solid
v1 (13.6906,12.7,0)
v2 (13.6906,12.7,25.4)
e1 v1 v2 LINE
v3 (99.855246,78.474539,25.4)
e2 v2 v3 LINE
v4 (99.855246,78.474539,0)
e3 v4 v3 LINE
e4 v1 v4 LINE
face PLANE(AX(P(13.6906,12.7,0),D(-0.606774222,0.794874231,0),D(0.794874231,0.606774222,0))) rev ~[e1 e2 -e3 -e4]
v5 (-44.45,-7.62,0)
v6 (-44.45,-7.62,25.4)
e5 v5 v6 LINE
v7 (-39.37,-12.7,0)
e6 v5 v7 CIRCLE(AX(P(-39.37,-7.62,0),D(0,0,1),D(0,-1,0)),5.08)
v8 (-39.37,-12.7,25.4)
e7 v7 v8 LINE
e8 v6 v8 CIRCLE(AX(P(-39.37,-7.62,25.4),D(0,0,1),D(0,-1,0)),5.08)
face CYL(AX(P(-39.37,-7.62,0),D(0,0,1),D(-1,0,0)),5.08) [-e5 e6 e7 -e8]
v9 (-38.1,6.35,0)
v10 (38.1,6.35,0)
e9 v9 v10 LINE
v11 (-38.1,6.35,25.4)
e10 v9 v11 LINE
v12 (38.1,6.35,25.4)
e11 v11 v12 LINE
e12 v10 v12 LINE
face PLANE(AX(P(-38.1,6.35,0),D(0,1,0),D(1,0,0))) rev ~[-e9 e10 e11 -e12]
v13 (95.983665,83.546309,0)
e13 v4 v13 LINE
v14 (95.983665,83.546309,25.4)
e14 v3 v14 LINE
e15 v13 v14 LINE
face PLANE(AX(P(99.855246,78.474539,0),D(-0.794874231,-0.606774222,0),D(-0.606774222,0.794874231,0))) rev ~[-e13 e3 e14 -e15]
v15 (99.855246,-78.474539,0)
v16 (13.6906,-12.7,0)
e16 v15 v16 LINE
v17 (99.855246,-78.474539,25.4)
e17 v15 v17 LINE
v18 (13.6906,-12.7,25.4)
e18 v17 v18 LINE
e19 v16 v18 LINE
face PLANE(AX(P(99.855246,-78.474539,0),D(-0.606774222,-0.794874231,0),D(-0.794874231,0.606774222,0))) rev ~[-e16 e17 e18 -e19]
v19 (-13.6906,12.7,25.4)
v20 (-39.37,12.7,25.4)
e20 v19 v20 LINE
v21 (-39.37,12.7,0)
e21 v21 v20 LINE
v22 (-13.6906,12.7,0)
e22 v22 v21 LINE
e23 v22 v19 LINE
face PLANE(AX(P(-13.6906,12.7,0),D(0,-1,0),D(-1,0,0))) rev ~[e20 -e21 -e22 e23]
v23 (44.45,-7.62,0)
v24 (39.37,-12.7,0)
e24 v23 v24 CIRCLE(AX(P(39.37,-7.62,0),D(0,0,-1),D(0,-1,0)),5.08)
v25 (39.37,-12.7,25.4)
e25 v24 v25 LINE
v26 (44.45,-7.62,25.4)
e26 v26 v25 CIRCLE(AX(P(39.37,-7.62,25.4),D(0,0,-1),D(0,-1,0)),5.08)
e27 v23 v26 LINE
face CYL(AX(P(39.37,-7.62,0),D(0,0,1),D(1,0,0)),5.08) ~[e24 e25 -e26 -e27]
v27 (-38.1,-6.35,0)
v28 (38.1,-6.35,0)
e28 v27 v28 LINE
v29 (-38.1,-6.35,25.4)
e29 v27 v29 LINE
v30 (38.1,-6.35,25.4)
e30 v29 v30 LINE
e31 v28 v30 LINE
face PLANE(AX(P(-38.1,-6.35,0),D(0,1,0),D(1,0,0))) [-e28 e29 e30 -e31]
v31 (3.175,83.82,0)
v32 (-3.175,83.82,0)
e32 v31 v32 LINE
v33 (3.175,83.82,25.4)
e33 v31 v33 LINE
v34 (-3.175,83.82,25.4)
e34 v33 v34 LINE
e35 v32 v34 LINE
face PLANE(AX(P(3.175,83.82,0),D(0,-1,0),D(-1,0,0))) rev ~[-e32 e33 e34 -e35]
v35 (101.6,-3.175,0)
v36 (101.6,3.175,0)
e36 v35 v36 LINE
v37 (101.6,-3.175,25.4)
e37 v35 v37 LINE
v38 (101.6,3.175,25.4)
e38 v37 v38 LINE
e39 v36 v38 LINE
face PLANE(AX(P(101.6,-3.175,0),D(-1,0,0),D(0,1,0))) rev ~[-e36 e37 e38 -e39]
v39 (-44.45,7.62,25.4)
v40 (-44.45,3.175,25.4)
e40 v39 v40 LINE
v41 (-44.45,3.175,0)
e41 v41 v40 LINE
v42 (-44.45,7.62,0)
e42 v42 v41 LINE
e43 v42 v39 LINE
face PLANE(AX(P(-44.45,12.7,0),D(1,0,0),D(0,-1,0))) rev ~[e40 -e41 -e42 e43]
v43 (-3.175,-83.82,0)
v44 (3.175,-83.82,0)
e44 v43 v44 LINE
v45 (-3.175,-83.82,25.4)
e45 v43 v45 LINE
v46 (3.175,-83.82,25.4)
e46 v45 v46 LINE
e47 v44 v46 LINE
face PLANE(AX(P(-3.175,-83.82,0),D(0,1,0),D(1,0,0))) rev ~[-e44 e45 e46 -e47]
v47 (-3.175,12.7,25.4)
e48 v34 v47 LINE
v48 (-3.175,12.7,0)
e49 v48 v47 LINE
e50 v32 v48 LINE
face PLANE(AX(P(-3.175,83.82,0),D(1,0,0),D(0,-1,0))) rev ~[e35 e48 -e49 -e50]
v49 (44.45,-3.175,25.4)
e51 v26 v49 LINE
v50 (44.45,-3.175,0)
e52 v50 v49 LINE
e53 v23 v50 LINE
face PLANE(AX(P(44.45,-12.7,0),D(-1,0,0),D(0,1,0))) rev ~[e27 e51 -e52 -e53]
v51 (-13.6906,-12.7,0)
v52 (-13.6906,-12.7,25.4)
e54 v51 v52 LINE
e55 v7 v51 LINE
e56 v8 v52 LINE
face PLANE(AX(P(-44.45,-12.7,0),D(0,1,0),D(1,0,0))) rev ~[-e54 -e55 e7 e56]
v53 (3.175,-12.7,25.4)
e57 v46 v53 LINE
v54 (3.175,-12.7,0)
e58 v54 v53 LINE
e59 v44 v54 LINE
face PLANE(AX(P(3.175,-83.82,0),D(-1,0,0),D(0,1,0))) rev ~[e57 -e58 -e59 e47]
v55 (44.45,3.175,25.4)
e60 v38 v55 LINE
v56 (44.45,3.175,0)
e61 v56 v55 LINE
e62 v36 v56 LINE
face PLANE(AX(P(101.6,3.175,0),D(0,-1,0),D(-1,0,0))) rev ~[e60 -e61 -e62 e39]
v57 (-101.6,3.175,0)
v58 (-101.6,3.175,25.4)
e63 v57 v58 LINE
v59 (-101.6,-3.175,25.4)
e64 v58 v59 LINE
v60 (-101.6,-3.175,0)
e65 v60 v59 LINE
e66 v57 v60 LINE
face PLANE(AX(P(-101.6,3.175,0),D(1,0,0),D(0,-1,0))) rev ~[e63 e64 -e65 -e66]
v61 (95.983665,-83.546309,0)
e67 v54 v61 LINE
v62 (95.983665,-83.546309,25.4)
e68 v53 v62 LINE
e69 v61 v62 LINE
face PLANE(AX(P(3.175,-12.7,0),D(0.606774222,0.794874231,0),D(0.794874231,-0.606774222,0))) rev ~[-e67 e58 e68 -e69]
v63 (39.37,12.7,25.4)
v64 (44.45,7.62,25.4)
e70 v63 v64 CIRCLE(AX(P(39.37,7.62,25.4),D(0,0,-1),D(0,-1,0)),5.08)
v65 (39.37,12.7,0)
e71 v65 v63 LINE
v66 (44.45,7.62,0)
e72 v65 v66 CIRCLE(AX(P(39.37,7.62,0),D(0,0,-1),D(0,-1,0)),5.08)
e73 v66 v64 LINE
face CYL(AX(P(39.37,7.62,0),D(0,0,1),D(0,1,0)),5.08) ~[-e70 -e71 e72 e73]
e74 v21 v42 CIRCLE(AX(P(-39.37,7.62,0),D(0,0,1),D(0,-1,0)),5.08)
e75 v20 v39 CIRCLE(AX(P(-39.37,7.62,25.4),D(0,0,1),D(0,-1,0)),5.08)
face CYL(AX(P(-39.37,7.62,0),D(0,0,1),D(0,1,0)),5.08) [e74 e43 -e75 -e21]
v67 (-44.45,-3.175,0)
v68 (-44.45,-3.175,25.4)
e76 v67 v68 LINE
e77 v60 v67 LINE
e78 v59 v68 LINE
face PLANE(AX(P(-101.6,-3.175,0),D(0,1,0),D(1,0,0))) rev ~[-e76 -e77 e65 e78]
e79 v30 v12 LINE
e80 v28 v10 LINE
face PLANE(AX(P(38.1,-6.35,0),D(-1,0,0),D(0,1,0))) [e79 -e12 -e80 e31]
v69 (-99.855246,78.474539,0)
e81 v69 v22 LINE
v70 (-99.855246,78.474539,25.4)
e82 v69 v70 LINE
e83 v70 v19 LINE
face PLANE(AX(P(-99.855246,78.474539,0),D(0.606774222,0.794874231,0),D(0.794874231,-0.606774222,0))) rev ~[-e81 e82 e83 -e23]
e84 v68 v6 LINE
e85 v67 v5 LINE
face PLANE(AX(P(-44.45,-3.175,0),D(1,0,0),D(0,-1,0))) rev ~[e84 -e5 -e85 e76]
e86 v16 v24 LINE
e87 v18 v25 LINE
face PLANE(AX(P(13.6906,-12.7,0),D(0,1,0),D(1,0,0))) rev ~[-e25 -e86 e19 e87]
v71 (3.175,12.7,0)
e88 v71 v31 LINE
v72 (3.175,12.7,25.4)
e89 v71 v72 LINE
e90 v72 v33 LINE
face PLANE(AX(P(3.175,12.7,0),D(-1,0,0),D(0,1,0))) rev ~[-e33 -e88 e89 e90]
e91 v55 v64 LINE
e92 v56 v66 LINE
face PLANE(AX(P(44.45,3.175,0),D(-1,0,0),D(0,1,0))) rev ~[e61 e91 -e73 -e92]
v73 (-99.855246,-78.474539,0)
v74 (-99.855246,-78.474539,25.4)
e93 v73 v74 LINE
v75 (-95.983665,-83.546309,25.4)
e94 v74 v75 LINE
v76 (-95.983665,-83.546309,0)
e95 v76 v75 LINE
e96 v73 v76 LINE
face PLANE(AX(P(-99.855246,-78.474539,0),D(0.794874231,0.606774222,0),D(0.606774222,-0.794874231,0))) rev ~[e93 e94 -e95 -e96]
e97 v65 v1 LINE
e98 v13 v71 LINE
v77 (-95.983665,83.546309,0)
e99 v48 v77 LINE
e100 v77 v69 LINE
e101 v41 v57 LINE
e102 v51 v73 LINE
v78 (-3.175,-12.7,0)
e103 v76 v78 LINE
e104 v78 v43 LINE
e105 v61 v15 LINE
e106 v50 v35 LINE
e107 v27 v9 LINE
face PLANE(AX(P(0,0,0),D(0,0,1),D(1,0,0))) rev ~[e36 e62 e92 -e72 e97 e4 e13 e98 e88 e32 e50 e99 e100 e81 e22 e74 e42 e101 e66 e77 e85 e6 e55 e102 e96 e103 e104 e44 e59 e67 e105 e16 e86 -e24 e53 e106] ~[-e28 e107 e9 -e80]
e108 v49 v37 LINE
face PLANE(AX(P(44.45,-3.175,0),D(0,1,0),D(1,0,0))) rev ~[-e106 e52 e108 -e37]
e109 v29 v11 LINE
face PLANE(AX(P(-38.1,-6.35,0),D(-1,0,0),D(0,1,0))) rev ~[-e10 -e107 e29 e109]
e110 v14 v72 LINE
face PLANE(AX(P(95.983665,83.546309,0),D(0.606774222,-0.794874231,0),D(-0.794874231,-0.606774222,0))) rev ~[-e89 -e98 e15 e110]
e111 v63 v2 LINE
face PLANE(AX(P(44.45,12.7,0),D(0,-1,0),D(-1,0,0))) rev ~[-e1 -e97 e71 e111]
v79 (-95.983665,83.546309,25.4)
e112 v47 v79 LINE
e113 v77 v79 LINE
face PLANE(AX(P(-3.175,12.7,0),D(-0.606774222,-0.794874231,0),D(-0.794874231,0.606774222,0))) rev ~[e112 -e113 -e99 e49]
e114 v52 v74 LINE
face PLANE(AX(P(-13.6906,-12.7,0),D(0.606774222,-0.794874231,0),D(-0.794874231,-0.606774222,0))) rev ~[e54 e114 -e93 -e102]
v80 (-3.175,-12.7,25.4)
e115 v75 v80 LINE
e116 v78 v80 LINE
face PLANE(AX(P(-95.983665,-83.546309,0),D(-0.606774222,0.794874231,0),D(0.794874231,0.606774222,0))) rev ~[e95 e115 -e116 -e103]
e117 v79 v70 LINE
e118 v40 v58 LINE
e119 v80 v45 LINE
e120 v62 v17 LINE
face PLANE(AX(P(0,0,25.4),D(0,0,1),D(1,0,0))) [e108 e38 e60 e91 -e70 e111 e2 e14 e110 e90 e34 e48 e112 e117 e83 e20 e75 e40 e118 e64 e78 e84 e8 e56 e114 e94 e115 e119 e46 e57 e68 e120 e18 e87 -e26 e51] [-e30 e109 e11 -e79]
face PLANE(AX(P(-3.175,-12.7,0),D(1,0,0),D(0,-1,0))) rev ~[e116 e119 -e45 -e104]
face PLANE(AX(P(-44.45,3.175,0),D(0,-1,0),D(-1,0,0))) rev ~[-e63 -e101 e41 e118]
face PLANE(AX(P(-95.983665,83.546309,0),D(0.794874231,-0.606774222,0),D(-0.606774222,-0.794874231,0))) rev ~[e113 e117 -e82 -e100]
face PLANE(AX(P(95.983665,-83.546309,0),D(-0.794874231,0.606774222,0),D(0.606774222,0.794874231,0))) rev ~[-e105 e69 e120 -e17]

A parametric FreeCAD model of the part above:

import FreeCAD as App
import Part
import Sketcher
Q = App.Units.Quantity


def edges_at(feature, points):
    """Names of the edges that pass closest to the given points."""
    edges = feature.Shape.Edges
    near = lambda p: min(range(len(edges)), key=lambda i: edges[i].distToShape(Part.Vertex(*p))[0])
    return sorted({f"Edge{near(p) + 1}" for p in points})

doc = App.newDocument("Part")
params = doc.addObject("Spreadsheet::Sheet", "Params")
for row, (alias, value) in enumerate([
    ("sketch1_width", "3 in"),
    ("sketch1_height", "2.8 in"),
    ("sketch1_height2", "0.5 in"),
    ("sketch1_width2", "0.25 in"),
    ("sketch1_width3", "2.25 in"),
    ("pad1_length", "1 in"),
    ("fillet_radius", "0.2 in"),
], start=1):
    params.set(f"A{row}", alias)
    params.set(f"B{row}", "=" + value)
    params.setAlias(f"B{row}", alias)

body = doc.addObject("PartDesign::Body", "Body")

# Sketch on XY plane
sketch1 = body.newObject("Sketcher::SketchObject", "Sketch")
sketch1.AttachmentSupport = (doc.getObject("XY_Plane"), [""])
sketch1.MapMode = "FlatFace"
sketch1.addGeometry([
    Part.LineSegment(App.Vector(44.45, 12.7, 0), App.Vector(13.6906, 12.7, 0)),  # 0
    Part.LineSegment(App.Vector(13.6906, 12.7, 0), App.Vector(99.855246, 78.474539, 0)),  # 1
    Part.LineSegment(App.Vector(99.855246, 78.474539, 0), App.Vector(95.983665, 83.546309, 0)),  # 2
    Part.LineSegment(App.Vector(95.983665, 83.546309, 0), App.Vector(3.175, 12.7, 0)),  # 3
    Part.LineSegment(App.Vector(3.175, 12.7, 0), App.Vector(3.175, 83.82, 0)),  # 4
    Part.LineSegment(App.Vector(3.175, 83.82, 0), App.Vector(-3.175, 83.82, 0)),  # 5
    Part.LineSegment(App.Vector(-3.175, 83.82, 0), App.Vector(-3.175, 12.7, 0)),  # 6
    Part.LineSegment(App.Vector(-3.175, 12.7, 0), App.Vector(-95.983665, 83.546309, 0)),  # 7
    Part.LineSegment(App.Vector(-95.983665, 83.546309, 0), App.Vector(-99.855246, 78.474539, 0)),  # 8
    Part.LineSegment(App.Vector(-99.855246, 78.474539, 0), App.Vector(-13.6906, 12.7, 0)),  # 9
    Part.LineSegment(App.Vector(-13.6906, 12.7, 0), App.Vector(-44.45, 12.7, 0)),  # 10
    Part.LineSegment(App.Vector(-44.45, 12.7, 0), App.Vector(-44.45, 3.175, 0)),  # 11
    Part.LineSegment(App.Vector(-44.45, 3.175, 0), App.Vector(-101.6, 3.175, 0)),  # 12
    Part.LineSegment(App.Vector(-101.6, 3.175, 0), App.Vector(-101.6, -3.175, 0)),  # 13
    Part.LineSegment(App.Vector(-101.6, -3.175, 0), App.Vector(-44.45, -3.175, 0)),  # 14
    Part.LineSegment(App.Vector(-44.45, -3.175, 0), App.Vector(-44.45, -12.7, 0)),  # 15
    Part.LineSegment(App.Vector(-44.45, -12.7, 0), App.Vector(-13.6906, -12.7, 0)),  # 16
    Part.LineSegment(App.Vector(-13.6906, -12.7, 0), App.Vector(-99.855246, -78.474539, 0)),  # 17
    Part.LineSegment(App.Vector(-99.855246, -78.474539, 0), App.Vector(-95.983665, -83.546309, 0)),  # 18
    Part.LineSegment(App.Vector(-95.983665, -83.546309, 0), App.Vector(-3.175, -12.7, 0)),  # 19
    Part.LineSegment(App.Vector(-3.175, -12.7, 0), App.Vector(-3.175, -83.82, 0)),  # 20
    Part.LineSegment(App.Vector(-3.175, -83.82, 0), App.Vector(3.175, -83.82, 0)),  # 21
    Part.LineSegment(App.Vector(3.175, -83.82, 0), App.Vector(3.175, -12.7, 0)),  # 22
    Part.LineSegment(App.Vector(3.175, -12.7, 0), App.Vector(95.983665, -83.546309, 0)),  # 23
    Part.LineSegment(App.Vector(95.983665, -83.546309, 0), App.Vector(99.855246, -78.474539, 0)),  # 24
    Part.LineSegment(App.Vector(99.855246, -78.474539, 0), App.Vector(13.6906, -12.7, 0)),  # 25
    Part.LineSegment(App.Vector(13.6906, -12.7, 0), App.Vector(44.45, -12.7, 0)),  # 26
    Part.LineSegment(App.Vector(44.45, -12.7, 0), App.Vector(44.45, -3.175, 0)),  # 27
    Part.LineSegment(App.Vector(44.45, -3.175, 0), App.Vector(101.6, -3.175, 0)),  # 28
    Part.LineSegment(App.Vector(101.6, -3.175, 0), App.Vector(101.6, 3.175, 0)),  # 29
    Part.LineSegment(App.Vector(101.6, 3.175, 0), App.Vector(44.45, 3.175, 0)),  # 30
    Part.LineSegment(App.Vector(44.45, 3.175, 0), App.Vector(44.45, 12.7, 0)),  # 31
    Part.LineSegment(App.Vector(38.1, -6.35, 0), App.Vector(-38.1, -6.35, 0)),  # 32
    Part.LineSegment(App.Vector(-38.1, -6.35, 0), App.Vector(-38.1, 6.35, 0)),  # 33
    Part.LineSegment(App.Vector(-38.1, 6.35, 0), App.Vector(38.1, 6.35, 0)),  # 34
    Part.LineSegment(App.Vector(38.1, 6.35, 0), App.Vector(38.1, -6.35, 0)),  # 35
], False)
sketch1.addConstraint([
    Sketcher.Constraint("Coincident", 0, 2, 1, 1),
    Sketcher.Constraint("Coincident", 1, 2, 2, 1),
    Sketcher.Constraint("Coincident", 2, 2, 3, 1),
    Sketcher.Constraint("Coincident", 3, 2, 4, 1),
    Sketcher.Constraint("Coincident", 4, 2, 5, 1),
    Sketcher.Constraint("Coincident", 5, 2, 6, 1),
    Sketcher.Constraint("Coincident", 6, 2, 7, 1),
    Sketcher.Constraint("Coincident", 7, 2, 8, 1),
    Sketcher.Constraint("Coincident", 8, 2, 9, 1),
    Sketcher.Constraint("Coincident", 9, 2, 10, 1),
    Sketcher.Constraint("Coincident", 10, 2, 11, 1),
    Sketcher.Constraint("Coincident", 11, 2, 12, 1),
    Sketcher.Constraint("Coincident", 12, 2, 13, 1),
    Sketcher.Constraint("Coincident", 13, 2, 14, 1),
    Sketcher.Constraint("Coincident", 14, 2, 15, 1),
    Sketcher.Constraint("Coincident", 15, 2, 16, 1),
    Sketcher.Constraint("Coincident", 16, 2, 17, 1),
    Sketcher.Constraint("Coincident", 17, 2, 18, 1),
    Sketcher.Constraint("Coincident", 18, 2, 19, 1),
    Sketcher.Constraint("Coincident", 19, 2, 20, 1),
    Sketcher.Constraint("Coincident", 20, 2, 21, 1),
    Sketcher.Constraint("Coincident", 21, 2, 22, 1),
    Sketcher.Constraint("Coincident", 22, 2, 23, 1),
    Sketcher.Constraint("Coincident", 23, 2, 24, 1),
    Sketcher.Constraint("Coincident", 24, 2, 25, 1),
    Sketcher.Constraint("Coincident", 25, 2, 26, 1),
    Sketcher.Constraint("Coincident", 26, 2, 27, 1),
    Sketcher.Constraint("Coincident", 27, 2, 28, 1),
    Sketcher.Constraint("Coincident", 28, 2, 29, 1),
    Sketcher.Constraint("Coincident", 29, 2, 30, 1),
    Sketcher.Constraint("Coincident", 30, 2, 31, 1),
    Sketcher.Constraint("Coincident", 31, 2, 0, 1),
    Sketcher.Constraint("Coincident", 32, 2, 33, 1),
    Sketcher.Constraint("Coincident", 33, 2, 34, 1),
    Sketcher.Constraint("Coincident", 34, 2, 35, 1),
    Sketcher.Constraint("Coincident", 35, 2, 32, 1),
    Sketcher.Constraint("Horizontal", 0),
    Sketcher.Constraint("Vertical", 4),
    Sketcher.Constraint("Horizontal", 5),
    Sketcher.Constraint("Vertical", 6),
    Sketcher.Constraint("Horizontal", 10),
    Sketcher.Constraint("Vertical", 11),
    Sketcher.Constraint("Horizontal", 12),
    Sketcher.Constraint("Vertical", 13),
    Sketcher.Constraint("Horizontal", 14),
    Sketcher.Constraint("Vertical", 15),
    Sketcher.Constraint("Horizontal", 16),
    Sketcher.Constraint("Vertical", 20),
    Sketcher.Constraint("Horizontal", 21),
    Sketcher.Constraint("Vertical", 22),
    Sketcher.Constraint("Horizontal", 26),
    Sketcher.Constraint("Vertical", 27),
    Sketcher.Constraint("Horizontal", 28),
    Sketcher.Constraint("Vertical", 29),
    Sketcher.Constraint("Horizontal", 30),
    Sketcher.Constraint("Vertical", 31),
    Sketcher.Constraint("Horizontal", 32),
    Sketcher.Constraint("Vertical", 33),
    Sketcher.Constraint("Horizontal", 34),
    Sketcher.Constraint("Vertical", 35),
    Sketcher.Constraint("Symmetric", 0, 2, 16, 2, -1, 1),
    Sketcher.Constraint("Symmetric", 1, 2, 17, 2, -1, 1),
    Sketcher.Constraint("Symmetric", 2, 2, 18, 2, -1, 1),
    Sketcher.Constraint("Symmetric", 3, 2, 19, 2, -1, 1),
    Sketcher.Constraint("Symmetric", 5, 2, 21, 2, -1, 1),
    Sketcher.Constraint("Symmetric", 7, 2, 23, 2, -1, 1),
    Sketcher.Constraint("Symmetric", 8, 2, 24, 2, -1, 1),
    Sketcher.Constraint("Symmetric", 9, 2, 25, 2, -1, 1),
    Sketcher.Constraint("Symmetric", 11, 2, 27, 2, -1, 1),
    Sketcher.Constraint("Symmetric", 13, 2, 29, 2, -1, 1),
    Sketcher.Constraint("Symmetric", 32, 2, 34, 2, -1, 1),
    Sketcher.Constraint("Symmetric", 3, 2, 6, 2, -2),
    Sketcher.Constraint("Symmetric", 2, 2, 7, 2, -2),
    Sketcher.Constraint("Symmetric", 1, 2, 8, 2, -2),
    Sketcher.Constraint("Symmetric", 0, 2, 9, 2, -2),
    Sketcher.Constraint("Symmetric", 14, 2, 27, 2, -2),
    Sketcher.Constraint("Perpendicular", 1, 2),
    Sketcher.Constraint("Perpendicular", 2, 3),
    Sketcher.Constraint("Parallel", 9, 23),
    Sketcher.Constraint("Horizontal", 0, 2, 3, 2),
    Sketcher.Constraint("Vertical", 27, 2, 30, 2),
    Sketcher.Constraint("Equal", 21, 13),
    Sketcher.Constraint("DistanceX", 32, 2, 32, 1, Q("3 in")),
    Sketcher.Constraint("DistanceY", 4, 1, 4, 2, Q("2.8 in")),
    Sketcher.Constraint("DistanceY", 33, 1, 33, 2, Q("0.5 in")),
    Sketcher.Constraint("DistanceX", 12, 2, -1, 1, Q("4 in")),
    Sketcher.Constraint("DistanceY", 15, 2, 10, 2, Q("1 in")),
    Sketcher.Constraint("DistanceX", 5, 2, 5, 1, Q("0.25 in")),
    Sketcher.Constraint("DistanceX", 12, 2, 12, 1, Q("2.25 in")),
    Sketcher.Constraint("DistanceX", 0, 2, 0, 1, Q("1.211 in")),
    Sketcher.Constraint("Distance", 1, Q("108.400351 mm")),
    Sketcher.Constraint("Distance", 3, Q("116.758931 mm")),
])
sketch1.setExpression("Constraints[82]", "Params.sketch1_width")
sketch1.setExpression("Constraints[83]", "Params.sketch1_height")
sketch1.setExpression("Constraints[84]", "Params.sketch1_height2")
sketch1.setExpression("Constraints[87]", "Params.sketch1_width2")
sketch1.setExpression("Constraints[88]", "Params.sketch1_width3")
pad1 = body.newObject("PartDesign::Pad", "Pad")
pad1.Profile = sketch1
pad1.setExpression("Length", "Params.pad1_length")
doc.recompute()

fillet = body.newObject("PartDesign::Fillet", "Fillet")
fillet.Base = (pad1, edges_at(pad1, [
    (44.45, 12.7, 12.7),
    (44.45, -12.7, 12.7),
    (-44.45, -12.7, 12.7),
    (-44.45, 12.7, 12.7),
]))
fillet.setExpression("Radius", "Params.fillet_radius")

doc.recompute()
